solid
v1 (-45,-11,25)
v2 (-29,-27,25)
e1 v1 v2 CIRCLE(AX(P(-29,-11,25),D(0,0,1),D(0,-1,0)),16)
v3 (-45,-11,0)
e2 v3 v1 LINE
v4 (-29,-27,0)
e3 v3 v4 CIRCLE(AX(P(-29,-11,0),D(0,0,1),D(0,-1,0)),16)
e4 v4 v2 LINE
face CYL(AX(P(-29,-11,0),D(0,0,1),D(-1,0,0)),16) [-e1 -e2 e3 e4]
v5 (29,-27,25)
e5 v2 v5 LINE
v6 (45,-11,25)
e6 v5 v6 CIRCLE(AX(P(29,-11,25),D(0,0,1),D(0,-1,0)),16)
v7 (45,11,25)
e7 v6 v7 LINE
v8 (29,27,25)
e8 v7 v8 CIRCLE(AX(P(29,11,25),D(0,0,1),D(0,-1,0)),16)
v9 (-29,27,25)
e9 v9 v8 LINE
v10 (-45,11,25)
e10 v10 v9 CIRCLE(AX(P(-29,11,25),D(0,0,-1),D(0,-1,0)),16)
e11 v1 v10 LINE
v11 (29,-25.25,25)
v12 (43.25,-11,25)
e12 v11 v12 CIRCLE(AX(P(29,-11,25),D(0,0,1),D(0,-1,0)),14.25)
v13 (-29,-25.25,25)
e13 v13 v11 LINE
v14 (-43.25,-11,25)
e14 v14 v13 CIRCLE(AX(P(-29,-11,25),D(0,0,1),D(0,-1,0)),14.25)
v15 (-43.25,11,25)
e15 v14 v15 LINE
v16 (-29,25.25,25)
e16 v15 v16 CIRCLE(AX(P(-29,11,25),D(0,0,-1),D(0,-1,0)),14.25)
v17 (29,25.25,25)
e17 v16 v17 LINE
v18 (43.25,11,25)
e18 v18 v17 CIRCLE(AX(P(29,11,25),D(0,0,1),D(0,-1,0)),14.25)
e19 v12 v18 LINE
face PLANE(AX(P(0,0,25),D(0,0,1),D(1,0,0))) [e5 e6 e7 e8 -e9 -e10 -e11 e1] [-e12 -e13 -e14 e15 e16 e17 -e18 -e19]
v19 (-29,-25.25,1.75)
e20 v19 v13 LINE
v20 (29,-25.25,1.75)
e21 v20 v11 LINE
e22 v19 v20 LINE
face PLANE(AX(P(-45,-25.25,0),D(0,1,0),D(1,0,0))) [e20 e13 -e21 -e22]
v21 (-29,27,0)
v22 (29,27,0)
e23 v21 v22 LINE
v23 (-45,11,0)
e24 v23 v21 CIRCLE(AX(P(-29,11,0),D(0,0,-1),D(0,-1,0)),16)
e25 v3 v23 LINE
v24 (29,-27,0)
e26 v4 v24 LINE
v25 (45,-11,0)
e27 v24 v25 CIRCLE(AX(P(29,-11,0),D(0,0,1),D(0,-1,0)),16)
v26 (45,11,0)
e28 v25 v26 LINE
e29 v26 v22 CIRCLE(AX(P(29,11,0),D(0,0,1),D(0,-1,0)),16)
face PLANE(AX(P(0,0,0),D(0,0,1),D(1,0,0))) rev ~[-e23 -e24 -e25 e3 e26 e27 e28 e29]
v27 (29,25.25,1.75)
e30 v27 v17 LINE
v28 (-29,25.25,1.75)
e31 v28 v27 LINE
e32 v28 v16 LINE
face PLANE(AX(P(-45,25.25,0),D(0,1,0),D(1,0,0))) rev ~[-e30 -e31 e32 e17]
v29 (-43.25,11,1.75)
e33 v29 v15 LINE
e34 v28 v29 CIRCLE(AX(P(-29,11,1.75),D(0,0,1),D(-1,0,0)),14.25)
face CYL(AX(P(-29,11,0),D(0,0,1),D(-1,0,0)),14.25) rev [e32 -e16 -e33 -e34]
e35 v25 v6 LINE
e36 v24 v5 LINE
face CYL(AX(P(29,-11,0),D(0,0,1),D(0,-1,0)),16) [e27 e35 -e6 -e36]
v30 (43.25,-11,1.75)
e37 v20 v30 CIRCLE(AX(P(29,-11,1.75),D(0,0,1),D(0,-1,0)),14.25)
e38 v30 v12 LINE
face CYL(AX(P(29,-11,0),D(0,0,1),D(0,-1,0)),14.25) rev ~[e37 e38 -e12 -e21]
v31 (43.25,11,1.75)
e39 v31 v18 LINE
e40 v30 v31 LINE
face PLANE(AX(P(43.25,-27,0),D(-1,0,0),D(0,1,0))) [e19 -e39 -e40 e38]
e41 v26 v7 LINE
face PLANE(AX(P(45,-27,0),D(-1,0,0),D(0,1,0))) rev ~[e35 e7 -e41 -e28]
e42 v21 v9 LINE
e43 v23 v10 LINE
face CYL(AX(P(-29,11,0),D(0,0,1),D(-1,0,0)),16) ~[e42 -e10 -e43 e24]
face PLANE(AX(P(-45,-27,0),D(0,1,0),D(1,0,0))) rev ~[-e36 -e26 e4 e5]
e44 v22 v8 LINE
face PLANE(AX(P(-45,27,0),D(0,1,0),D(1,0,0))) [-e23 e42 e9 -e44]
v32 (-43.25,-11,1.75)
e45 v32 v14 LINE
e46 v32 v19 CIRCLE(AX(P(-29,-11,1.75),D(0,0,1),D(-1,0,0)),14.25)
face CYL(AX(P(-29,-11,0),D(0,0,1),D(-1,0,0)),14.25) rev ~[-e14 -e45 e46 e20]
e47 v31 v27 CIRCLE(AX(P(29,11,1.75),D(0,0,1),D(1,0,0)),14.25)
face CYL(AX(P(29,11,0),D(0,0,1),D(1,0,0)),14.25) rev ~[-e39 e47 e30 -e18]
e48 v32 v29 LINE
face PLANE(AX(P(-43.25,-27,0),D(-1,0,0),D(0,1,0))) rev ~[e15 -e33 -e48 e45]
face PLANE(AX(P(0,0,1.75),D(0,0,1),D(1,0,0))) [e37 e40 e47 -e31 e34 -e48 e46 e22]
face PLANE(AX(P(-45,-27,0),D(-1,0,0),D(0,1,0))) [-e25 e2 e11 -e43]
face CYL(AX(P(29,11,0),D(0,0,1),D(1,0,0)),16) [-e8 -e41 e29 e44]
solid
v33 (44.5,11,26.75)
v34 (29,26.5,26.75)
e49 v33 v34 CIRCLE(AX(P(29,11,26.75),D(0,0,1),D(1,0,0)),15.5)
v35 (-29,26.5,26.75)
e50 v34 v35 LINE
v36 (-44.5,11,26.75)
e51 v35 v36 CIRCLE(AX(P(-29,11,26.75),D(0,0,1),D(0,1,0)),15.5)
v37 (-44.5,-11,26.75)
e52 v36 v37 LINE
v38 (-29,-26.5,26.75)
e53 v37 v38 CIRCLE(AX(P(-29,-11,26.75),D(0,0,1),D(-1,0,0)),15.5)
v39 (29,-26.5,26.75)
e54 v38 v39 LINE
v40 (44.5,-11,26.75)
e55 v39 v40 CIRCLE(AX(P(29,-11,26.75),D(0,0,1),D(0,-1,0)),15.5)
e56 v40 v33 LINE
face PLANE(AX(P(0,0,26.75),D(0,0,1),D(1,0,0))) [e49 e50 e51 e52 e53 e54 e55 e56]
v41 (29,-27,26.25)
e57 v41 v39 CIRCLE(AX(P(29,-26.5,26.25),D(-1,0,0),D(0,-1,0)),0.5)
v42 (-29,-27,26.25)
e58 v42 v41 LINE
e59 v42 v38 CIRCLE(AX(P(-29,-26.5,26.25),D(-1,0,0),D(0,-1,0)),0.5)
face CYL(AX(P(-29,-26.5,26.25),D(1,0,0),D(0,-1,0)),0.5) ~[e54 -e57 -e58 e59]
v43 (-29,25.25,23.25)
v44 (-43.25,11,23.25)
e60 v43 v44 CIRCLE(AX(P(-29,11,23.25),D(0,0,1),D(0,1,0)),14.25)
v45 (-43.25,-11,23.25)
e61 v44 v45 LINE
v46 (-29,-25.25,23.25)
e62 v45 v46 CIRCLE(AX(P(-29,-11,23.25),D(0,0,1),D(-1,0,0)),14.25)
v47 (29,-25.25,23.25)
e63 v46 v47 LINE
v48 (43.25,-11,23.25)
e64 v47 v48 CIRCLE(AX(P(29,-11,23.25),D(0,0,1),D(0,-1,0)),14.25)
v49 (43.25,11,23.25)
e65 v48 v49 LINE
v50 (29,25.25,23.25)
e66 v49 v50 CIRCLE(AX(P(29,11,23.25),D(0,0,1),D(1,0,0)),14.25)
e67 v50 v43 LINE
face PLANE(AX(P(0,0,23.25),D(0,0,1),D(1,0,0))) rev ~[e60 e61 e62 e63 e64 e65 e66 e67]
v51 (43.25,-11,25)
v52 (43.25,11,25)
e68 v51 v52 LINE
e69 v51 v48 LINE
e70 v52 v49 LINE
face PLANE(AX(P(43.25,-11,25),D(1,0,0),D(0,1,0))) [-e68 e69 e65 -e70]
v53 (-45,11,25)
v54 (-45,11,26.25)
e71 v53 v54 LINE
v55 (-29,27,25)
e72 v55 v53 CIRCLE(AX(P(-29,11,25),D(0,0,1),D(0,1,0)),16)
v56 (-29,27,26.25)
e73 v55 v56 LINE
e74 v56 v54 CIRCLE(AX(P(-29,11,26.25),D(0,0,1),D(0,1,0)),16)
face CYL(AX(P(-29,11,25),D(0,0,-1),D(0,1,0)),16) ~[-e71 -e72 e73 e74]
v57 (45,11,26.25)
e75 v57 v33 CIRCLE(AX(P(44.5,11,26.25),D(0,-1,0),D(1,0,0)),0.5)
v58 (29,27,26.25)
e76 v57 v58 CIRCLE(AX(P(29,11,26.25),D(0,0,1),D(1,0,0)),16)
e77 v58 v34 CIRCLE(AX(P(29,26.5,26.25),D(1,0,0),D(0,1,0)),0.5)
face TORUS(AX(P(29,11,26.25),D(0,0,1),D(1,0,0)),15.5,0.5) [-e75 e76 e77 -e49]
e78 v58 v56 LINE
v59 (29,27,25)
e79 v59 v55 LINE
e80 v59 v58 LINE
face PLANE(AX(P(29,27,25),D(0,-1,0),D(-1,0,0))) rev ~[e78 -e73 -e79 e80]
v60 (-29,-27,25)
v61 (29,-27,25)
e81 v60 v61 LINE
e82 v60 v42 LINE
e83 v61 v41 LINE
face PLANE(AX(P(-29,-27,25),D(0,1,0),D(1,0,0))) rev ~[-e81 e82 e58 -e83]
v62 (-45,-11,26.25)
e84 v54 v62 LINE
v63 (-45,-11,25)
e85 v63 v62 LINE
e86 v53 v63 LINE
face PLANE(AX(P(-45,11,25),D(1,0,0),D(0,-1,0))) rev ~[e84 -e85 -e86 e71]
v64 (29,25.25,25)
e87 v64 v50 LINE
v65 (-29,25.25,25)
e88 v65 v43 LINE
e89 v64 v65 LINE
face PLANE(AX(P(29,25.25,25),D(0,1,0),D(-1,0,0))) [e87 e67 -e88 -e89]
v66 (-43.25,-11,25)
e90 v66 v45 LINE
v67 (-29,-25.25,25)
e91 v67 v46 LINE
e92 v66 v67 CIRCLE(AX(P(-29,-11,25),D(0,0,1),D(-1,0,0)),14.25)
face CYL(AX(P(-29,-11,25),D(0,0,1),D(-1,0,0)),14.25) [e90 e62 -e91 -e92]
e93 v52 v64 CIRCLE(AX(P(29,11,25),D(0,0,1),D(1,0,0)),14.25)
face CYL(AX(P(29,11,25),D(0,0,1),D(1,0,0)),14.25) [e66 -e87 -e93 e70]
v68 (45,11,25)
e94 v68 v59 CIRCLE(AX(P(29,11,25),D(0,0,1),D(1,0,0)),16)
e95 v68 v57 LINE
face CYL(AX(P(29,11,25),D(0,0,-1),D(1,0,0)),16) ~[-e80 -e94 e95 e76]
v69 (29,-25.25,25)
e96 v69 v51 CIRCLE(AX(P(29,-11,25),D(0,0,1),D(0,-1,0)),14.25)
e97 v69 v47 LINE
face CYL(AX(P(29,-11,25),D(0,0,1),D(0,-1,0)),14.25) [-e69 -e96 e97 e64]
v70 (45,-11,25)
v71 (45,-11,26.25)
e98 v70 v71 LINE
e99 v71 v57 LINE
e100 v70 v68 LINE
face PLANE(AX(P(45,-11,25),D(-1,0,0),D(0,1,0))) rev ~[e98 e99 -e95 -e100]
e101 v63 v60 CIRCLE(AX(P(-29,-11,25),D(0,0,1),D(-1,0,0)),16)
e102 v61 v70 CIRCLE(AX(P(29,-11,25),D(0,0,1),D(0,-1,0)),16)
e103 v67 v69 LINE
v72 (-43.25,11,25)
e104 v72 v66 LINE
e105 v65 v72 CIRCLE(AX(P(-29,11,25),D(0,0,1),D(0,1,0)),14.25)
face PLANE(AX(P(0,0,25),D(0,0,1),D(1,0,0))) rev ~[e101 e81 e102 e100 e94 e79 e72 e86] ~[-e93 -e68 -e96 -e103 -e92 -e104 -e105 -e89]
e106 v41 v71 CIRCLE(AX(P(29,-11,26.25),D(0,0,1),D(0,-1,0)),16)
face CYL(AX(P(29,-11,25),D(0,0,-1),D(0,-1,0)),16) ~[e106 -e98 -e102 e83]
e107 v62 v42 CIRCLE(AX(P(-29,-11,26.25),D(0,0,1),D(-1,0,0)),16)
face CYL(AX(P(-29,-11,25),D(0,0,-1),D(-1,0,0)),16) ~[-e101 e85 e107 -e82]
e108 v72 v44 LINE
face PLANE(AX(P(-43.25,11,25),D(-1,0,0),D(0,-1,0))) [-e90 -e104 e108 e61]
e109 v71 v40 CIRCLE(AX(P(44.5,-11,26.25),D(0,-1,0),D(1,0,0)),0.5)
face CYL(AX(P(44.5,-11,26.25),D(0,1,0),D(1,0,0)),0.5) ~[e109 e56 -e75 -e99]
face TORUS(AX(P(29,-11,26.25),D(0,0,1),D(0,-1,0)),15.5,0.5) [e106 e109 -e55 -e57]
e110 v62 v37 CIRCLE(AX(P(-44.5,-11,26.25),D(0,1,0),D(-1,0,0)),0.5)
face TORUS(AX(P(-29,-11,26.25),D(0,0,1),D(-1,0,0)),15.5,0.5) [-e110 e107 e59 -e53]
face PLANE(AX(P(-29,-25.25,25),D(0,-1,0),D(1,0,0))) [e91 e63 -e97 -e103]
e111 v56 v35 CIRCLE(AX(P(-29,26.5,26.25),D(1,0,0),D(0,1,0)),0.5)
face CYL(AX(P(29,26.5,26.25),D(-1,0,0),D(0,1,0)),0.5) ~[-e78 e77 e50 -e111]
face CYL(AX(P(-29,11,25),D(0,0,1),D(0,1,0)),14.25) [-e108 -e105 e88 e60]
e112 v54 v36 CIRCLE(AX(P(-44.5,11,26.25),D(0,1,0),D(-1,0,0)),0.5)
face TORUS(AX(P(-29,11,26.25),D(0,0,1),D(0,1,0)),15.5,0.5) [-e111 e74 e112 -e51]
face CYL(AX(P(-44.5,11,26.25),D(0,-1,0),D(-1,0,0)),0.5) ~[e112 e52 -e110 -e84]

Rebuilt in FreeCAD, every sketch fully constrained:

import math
import FreeCAD as App
import Part
import Sketcher

V = App.Vector


def edges_at(feature, points):
    """Names of the edges that pass closest to the given points."""
    edges = feature.Shape.Edges
    near = lambda p: min(range(len(edges)), key=lambda i: edges[i].distToShape(Part.Vertex(*p))[0])
    return sorted({f"Edge{near(p) + 1}" for p in points})


def faces_at(feature, points):
    """Names of the faces that lie closest to the given points."""
    faces = feature.Shape.Faces
    near = lambda p: min(range(len(faces)), key=lambda i: faces[i].distToShape(Part.Vertex(*p))[0])
    return sorted({f"Face{near(p) + 1}" for p in points})


def add_polygon(sketch, points):
    """Adds a closed chain of lines whose ends are joined by coincident constraints."""
    first, n = sketch.GeometryCount, len(points)
    for a, b in zip(points, points[1:] + points[:1]):
        sketch.addGeometry(Part.LineSegment(App.Vector(*a, 0), App.Vector(*b, 0)), False)
    for i in range(n):
        sketch.addConstraint(Sketcher.Constraint("Coincident", first + i, 2, first + (i + 1) % n, 1))

doc = App.newDocument("Part")
body = doc.addObject("PartDesign::Body", "Body")

# Sketch on XY plane
sketch1 = body.newObject("Sketcher::SketchObject", "Sketch")
sketch1.AttachmentSupport = (doc.getObject("XY_Plane"), [""])
sketch1.MapMode = "FlatFace"
add_polygon(sketch1, [(-45, 27), (-45, -27), (45, -27), (45, 27)])  # lines 0-3
sketch1.addConstraint([
    Sketcher.Constraint("Vertical", 0),
    Sketcher.Constraint("Horizontal", 1),
    Sketcher.Constraint("Vertical", 2),
    Sketcher.Constraint("Horizontal", 3),
    Sketcher.Constraint("Symmetric", 0, 2, 2, 2, -1, 1),
    Sketcher.Constraint("DistanceX", 1, 1, 1, 2, 90.0),
    Sketcher.Constraint("DistanceY", 0, 2, 0, 1, 54.0),
])
pad1 = body.newObject("PartDesign::Pad", "Pad")
pad1.Profile = sketch1
pad1.Length = 25
doc.recompute()

fillet = body.newObject("PartDesign::Fillet", "Fillet")
fillet.Base = (pad1, edges_at(pad1, [
    (-45, -27, 12.5),
    (45, -27, 12.5),
    (45, 27, 12.5),
    (-45, 27, 12.5),
]))
fillet.Radius = 16
doc.recompute()

thickness = body.newObject("PartDesign::Thickness", "Thickness")
thickness.Base = (fillet, faces_at(fillet, [(0, 0, 25)]))
thickness.Value = 1.75
thickness.Reversed = True
thickness.Join = "Arc"
body2 = doc.addObject("PartDesign::Body", "Body001")

# Sketch on XY plane
sketch2 = body2.newObject("Sketcher::SketchObject", "Sketch001")
sketch2.AttachmentSupport = (doc.getObject("XY_Plane001"), [""])
sketch2.MapMode = "FlatFace"
sketch2.AttachmentOffset = App.Placement(V(0, 0, 25), App.Rotation())
sketch2.addGeometry([
    Part.LineSegment(V(-43, 11, 0), V(-43, -11, 0)),  # 0
    Part.ArcOfCircle(Part.Circle(V(-29, -11, 0), V(0, 0, 1), 14), math.radians(180), math.radians(270)),  # 1
    Part.LineSegment(V(-29, -25, 0), V(29, -25, 0)),  # 2
    Part.ArcOfCircle(Part.Circle(V(29, -11, 0), V(0, 0, 1), 14), math.radians(-90), math.radians(0)),  # 3
    Part.LineSegment(V(43, -11, 0), V(43, 11, 0)),  # 4
    Part.ArcOfCircle(Part.Circle(V(29, 11, 0), V(0, 0, 1), 14), math.radians(0), math.radians(90)),  # 5
    Part.LineSegment(V(29, 25, 0), V(-29, 25, 0)),  # 6
    Part.ArcOfCircle(Part.Circle(V(-29, 11, 0), V(0, 0, 1), 14), math.radians(90), math.radians(180)),  # 7
], False)
sketch2.addConstraint([
    Sketcher.Constraint("Tangent", 0, 2, 1, 1),
    Sketcher.Constraint("Tangent", 1, 2, 2, 1),
    Sketcher.Constraint("Tangent", 2, 2, 3, 1),
    Sketcher.Constraint("Tangent", 3, 2, 4, 1),
    Sketcher.Constraint("Tangent", 4, 2, 5, 1),
    Sketcher.Constraint("Tangent", 5, 2, 6, 1),
    Sketcher.Constraint("Tangent", 6, 2, 7, 1),
    Sketcher.Constraint("Tangent", 7, 2, 0, 1),
    Sketcher.Constraint("Vertical", 0),
    Sketcher.Constraint("Horizontal", 2),
    Sketcher.Constraint("Vertical", 4),
    Sketcher.Constraint("Horizontal", 6),
    Sketcher.Constraint("Equal", 1, 3),
    Sketcher.Constraint("Equal", 3, 5),
    Sketcher.Constraint("Equal", 5, 7),
    Sketcher.Constraint("Symmetric", 1, 3, 5, 3, -1, 1),
    Sketcher.Constraint("DistanceX", 2, 1, 2, 2, 58.0),
    Sketcher.Constraint("DistanceY", 0, 2, 0, 1, 22.0),
    Sketcher.Constraint("Radius", 1, 14.25),
])
pad2 = body2.newObject("PartDesign::Pad", "Pad001")
pad2.Profile = sketch2
pad2.Length = 1.75
pad2.Reversed = True

# Sketch on XY plane
sketch3 = body2.newObject("Sketcher::SketchObject", "Sketch002")
sketch3.AttachmentSupport = (doc.getObject("XY_Plane001"), [""])
sketch3.MapMode = "FlatFace"
sketch3.AttachmentOffset = App.Placement(V(0, 0, 25), App.Rotation())
sketch3.addGeometry([
    Part.LineSegment(V(-29, -27, 0), V(29, -27, 0)),  # 0
    Part.ArcOfCircle(Part.Circle(V(29, -11, 0), V(0, 0, 1), 16), math.radians(-90), math.radians(0)),  # 1
    Part.LineSegment(V(45, -11, 0), V(45, 11, 0)),  # 2
    Part.ArcOfCircle(Part.Circle(V(29, 11, 0), V(0, 0, 1), 16), math.radians(0), math.radians(90)),  # 3
    Part.LineSegment(V(29, 27, 0), V(-29, 27, 0)),  # 4
    Part.ArcOfCircle(Part.Circle(V(-29, 11, 0), V(0, 0, 1), 16), math.radians(90), math.radians(180)),  # 5
    Part.LineSegment(V(-45, 11, 0), V(-45, -11, 0)),  # 6
    Part.ArcOfCircle(Part.Circle(V(-29, -11, 0), V(0, 0, 1), 16), math.radians(180), math.radians(270)),  # 7
], False)
sketch3.addConstraint([
    Sketcher.Constraint("Tangent", 0, 2, 1, 1),
    Sketcher.Constraint("Tangent", 1, 2, 2, 1),
    Sketcher.Constraint("Tangent", 2, 2, 3, 1),
    Sketcher.Constraint("Tangent", 3, 2, 4, 1),
    Sketcher.Constraint("Tangent", 4, 2, 5, 1),
    Sketcher.Constraint("Tangent", 5, 2, 6, 1),
    Sketcher.Constraint("Tangent", 6, 2, 7, 1),
    Sketcher.Constraint("Tangent", 7, 2, 0, 1),
    Sketcher.Constraint("Horizontal", 0),
    Sketcher.Constraint("Vertical", 2),
    Sketcher.Constraint("Horizontal", 4),
    Sketcher.Constraint("Vertical", 6),
    Sketcher.Constraint("Equal", 1, 3),
    Sketcher.Constraint("Equal", 3, 5),
    Sketcher.Constraint("Equal", 5, 7),
    Sketcher.Constraint("Symmetric", 1, 3, 5, 3, -1, 1),
    Sketcher.Constraint("Radius", 1, 16.0),
    Sketcher.Constraint("DistanceX", 0, 1, 0, 2, 58.0),
    Sketcher.Constraint("DistanceY", 2, 1, 2, 2, 22.0),
])
pad3 = body2.newObject("PartDesign::Pad", "Pad002")
pad3.Profile = sketch3
pad3.Length = 1.75
doc.recompute()

fillet2 = body2.newObject("PartDesign::Fillet", "Fillet001")
fillet2.Base = (pad3, edges_at(pad3, [
    (0, -27, 26.75),
    (40.314, -22.314, 26.75),
    (45, 0, 26.75),
    (40.314, 22.314, 26.75),
    (0, 27, 26.75),
    (-40.314, 22.314, 26.75),
    (-45, 0, 26.75),
    (-40.314, -22.314, 26.75),
]))
fillet2.Radius = 0.5

doc.recompute()
